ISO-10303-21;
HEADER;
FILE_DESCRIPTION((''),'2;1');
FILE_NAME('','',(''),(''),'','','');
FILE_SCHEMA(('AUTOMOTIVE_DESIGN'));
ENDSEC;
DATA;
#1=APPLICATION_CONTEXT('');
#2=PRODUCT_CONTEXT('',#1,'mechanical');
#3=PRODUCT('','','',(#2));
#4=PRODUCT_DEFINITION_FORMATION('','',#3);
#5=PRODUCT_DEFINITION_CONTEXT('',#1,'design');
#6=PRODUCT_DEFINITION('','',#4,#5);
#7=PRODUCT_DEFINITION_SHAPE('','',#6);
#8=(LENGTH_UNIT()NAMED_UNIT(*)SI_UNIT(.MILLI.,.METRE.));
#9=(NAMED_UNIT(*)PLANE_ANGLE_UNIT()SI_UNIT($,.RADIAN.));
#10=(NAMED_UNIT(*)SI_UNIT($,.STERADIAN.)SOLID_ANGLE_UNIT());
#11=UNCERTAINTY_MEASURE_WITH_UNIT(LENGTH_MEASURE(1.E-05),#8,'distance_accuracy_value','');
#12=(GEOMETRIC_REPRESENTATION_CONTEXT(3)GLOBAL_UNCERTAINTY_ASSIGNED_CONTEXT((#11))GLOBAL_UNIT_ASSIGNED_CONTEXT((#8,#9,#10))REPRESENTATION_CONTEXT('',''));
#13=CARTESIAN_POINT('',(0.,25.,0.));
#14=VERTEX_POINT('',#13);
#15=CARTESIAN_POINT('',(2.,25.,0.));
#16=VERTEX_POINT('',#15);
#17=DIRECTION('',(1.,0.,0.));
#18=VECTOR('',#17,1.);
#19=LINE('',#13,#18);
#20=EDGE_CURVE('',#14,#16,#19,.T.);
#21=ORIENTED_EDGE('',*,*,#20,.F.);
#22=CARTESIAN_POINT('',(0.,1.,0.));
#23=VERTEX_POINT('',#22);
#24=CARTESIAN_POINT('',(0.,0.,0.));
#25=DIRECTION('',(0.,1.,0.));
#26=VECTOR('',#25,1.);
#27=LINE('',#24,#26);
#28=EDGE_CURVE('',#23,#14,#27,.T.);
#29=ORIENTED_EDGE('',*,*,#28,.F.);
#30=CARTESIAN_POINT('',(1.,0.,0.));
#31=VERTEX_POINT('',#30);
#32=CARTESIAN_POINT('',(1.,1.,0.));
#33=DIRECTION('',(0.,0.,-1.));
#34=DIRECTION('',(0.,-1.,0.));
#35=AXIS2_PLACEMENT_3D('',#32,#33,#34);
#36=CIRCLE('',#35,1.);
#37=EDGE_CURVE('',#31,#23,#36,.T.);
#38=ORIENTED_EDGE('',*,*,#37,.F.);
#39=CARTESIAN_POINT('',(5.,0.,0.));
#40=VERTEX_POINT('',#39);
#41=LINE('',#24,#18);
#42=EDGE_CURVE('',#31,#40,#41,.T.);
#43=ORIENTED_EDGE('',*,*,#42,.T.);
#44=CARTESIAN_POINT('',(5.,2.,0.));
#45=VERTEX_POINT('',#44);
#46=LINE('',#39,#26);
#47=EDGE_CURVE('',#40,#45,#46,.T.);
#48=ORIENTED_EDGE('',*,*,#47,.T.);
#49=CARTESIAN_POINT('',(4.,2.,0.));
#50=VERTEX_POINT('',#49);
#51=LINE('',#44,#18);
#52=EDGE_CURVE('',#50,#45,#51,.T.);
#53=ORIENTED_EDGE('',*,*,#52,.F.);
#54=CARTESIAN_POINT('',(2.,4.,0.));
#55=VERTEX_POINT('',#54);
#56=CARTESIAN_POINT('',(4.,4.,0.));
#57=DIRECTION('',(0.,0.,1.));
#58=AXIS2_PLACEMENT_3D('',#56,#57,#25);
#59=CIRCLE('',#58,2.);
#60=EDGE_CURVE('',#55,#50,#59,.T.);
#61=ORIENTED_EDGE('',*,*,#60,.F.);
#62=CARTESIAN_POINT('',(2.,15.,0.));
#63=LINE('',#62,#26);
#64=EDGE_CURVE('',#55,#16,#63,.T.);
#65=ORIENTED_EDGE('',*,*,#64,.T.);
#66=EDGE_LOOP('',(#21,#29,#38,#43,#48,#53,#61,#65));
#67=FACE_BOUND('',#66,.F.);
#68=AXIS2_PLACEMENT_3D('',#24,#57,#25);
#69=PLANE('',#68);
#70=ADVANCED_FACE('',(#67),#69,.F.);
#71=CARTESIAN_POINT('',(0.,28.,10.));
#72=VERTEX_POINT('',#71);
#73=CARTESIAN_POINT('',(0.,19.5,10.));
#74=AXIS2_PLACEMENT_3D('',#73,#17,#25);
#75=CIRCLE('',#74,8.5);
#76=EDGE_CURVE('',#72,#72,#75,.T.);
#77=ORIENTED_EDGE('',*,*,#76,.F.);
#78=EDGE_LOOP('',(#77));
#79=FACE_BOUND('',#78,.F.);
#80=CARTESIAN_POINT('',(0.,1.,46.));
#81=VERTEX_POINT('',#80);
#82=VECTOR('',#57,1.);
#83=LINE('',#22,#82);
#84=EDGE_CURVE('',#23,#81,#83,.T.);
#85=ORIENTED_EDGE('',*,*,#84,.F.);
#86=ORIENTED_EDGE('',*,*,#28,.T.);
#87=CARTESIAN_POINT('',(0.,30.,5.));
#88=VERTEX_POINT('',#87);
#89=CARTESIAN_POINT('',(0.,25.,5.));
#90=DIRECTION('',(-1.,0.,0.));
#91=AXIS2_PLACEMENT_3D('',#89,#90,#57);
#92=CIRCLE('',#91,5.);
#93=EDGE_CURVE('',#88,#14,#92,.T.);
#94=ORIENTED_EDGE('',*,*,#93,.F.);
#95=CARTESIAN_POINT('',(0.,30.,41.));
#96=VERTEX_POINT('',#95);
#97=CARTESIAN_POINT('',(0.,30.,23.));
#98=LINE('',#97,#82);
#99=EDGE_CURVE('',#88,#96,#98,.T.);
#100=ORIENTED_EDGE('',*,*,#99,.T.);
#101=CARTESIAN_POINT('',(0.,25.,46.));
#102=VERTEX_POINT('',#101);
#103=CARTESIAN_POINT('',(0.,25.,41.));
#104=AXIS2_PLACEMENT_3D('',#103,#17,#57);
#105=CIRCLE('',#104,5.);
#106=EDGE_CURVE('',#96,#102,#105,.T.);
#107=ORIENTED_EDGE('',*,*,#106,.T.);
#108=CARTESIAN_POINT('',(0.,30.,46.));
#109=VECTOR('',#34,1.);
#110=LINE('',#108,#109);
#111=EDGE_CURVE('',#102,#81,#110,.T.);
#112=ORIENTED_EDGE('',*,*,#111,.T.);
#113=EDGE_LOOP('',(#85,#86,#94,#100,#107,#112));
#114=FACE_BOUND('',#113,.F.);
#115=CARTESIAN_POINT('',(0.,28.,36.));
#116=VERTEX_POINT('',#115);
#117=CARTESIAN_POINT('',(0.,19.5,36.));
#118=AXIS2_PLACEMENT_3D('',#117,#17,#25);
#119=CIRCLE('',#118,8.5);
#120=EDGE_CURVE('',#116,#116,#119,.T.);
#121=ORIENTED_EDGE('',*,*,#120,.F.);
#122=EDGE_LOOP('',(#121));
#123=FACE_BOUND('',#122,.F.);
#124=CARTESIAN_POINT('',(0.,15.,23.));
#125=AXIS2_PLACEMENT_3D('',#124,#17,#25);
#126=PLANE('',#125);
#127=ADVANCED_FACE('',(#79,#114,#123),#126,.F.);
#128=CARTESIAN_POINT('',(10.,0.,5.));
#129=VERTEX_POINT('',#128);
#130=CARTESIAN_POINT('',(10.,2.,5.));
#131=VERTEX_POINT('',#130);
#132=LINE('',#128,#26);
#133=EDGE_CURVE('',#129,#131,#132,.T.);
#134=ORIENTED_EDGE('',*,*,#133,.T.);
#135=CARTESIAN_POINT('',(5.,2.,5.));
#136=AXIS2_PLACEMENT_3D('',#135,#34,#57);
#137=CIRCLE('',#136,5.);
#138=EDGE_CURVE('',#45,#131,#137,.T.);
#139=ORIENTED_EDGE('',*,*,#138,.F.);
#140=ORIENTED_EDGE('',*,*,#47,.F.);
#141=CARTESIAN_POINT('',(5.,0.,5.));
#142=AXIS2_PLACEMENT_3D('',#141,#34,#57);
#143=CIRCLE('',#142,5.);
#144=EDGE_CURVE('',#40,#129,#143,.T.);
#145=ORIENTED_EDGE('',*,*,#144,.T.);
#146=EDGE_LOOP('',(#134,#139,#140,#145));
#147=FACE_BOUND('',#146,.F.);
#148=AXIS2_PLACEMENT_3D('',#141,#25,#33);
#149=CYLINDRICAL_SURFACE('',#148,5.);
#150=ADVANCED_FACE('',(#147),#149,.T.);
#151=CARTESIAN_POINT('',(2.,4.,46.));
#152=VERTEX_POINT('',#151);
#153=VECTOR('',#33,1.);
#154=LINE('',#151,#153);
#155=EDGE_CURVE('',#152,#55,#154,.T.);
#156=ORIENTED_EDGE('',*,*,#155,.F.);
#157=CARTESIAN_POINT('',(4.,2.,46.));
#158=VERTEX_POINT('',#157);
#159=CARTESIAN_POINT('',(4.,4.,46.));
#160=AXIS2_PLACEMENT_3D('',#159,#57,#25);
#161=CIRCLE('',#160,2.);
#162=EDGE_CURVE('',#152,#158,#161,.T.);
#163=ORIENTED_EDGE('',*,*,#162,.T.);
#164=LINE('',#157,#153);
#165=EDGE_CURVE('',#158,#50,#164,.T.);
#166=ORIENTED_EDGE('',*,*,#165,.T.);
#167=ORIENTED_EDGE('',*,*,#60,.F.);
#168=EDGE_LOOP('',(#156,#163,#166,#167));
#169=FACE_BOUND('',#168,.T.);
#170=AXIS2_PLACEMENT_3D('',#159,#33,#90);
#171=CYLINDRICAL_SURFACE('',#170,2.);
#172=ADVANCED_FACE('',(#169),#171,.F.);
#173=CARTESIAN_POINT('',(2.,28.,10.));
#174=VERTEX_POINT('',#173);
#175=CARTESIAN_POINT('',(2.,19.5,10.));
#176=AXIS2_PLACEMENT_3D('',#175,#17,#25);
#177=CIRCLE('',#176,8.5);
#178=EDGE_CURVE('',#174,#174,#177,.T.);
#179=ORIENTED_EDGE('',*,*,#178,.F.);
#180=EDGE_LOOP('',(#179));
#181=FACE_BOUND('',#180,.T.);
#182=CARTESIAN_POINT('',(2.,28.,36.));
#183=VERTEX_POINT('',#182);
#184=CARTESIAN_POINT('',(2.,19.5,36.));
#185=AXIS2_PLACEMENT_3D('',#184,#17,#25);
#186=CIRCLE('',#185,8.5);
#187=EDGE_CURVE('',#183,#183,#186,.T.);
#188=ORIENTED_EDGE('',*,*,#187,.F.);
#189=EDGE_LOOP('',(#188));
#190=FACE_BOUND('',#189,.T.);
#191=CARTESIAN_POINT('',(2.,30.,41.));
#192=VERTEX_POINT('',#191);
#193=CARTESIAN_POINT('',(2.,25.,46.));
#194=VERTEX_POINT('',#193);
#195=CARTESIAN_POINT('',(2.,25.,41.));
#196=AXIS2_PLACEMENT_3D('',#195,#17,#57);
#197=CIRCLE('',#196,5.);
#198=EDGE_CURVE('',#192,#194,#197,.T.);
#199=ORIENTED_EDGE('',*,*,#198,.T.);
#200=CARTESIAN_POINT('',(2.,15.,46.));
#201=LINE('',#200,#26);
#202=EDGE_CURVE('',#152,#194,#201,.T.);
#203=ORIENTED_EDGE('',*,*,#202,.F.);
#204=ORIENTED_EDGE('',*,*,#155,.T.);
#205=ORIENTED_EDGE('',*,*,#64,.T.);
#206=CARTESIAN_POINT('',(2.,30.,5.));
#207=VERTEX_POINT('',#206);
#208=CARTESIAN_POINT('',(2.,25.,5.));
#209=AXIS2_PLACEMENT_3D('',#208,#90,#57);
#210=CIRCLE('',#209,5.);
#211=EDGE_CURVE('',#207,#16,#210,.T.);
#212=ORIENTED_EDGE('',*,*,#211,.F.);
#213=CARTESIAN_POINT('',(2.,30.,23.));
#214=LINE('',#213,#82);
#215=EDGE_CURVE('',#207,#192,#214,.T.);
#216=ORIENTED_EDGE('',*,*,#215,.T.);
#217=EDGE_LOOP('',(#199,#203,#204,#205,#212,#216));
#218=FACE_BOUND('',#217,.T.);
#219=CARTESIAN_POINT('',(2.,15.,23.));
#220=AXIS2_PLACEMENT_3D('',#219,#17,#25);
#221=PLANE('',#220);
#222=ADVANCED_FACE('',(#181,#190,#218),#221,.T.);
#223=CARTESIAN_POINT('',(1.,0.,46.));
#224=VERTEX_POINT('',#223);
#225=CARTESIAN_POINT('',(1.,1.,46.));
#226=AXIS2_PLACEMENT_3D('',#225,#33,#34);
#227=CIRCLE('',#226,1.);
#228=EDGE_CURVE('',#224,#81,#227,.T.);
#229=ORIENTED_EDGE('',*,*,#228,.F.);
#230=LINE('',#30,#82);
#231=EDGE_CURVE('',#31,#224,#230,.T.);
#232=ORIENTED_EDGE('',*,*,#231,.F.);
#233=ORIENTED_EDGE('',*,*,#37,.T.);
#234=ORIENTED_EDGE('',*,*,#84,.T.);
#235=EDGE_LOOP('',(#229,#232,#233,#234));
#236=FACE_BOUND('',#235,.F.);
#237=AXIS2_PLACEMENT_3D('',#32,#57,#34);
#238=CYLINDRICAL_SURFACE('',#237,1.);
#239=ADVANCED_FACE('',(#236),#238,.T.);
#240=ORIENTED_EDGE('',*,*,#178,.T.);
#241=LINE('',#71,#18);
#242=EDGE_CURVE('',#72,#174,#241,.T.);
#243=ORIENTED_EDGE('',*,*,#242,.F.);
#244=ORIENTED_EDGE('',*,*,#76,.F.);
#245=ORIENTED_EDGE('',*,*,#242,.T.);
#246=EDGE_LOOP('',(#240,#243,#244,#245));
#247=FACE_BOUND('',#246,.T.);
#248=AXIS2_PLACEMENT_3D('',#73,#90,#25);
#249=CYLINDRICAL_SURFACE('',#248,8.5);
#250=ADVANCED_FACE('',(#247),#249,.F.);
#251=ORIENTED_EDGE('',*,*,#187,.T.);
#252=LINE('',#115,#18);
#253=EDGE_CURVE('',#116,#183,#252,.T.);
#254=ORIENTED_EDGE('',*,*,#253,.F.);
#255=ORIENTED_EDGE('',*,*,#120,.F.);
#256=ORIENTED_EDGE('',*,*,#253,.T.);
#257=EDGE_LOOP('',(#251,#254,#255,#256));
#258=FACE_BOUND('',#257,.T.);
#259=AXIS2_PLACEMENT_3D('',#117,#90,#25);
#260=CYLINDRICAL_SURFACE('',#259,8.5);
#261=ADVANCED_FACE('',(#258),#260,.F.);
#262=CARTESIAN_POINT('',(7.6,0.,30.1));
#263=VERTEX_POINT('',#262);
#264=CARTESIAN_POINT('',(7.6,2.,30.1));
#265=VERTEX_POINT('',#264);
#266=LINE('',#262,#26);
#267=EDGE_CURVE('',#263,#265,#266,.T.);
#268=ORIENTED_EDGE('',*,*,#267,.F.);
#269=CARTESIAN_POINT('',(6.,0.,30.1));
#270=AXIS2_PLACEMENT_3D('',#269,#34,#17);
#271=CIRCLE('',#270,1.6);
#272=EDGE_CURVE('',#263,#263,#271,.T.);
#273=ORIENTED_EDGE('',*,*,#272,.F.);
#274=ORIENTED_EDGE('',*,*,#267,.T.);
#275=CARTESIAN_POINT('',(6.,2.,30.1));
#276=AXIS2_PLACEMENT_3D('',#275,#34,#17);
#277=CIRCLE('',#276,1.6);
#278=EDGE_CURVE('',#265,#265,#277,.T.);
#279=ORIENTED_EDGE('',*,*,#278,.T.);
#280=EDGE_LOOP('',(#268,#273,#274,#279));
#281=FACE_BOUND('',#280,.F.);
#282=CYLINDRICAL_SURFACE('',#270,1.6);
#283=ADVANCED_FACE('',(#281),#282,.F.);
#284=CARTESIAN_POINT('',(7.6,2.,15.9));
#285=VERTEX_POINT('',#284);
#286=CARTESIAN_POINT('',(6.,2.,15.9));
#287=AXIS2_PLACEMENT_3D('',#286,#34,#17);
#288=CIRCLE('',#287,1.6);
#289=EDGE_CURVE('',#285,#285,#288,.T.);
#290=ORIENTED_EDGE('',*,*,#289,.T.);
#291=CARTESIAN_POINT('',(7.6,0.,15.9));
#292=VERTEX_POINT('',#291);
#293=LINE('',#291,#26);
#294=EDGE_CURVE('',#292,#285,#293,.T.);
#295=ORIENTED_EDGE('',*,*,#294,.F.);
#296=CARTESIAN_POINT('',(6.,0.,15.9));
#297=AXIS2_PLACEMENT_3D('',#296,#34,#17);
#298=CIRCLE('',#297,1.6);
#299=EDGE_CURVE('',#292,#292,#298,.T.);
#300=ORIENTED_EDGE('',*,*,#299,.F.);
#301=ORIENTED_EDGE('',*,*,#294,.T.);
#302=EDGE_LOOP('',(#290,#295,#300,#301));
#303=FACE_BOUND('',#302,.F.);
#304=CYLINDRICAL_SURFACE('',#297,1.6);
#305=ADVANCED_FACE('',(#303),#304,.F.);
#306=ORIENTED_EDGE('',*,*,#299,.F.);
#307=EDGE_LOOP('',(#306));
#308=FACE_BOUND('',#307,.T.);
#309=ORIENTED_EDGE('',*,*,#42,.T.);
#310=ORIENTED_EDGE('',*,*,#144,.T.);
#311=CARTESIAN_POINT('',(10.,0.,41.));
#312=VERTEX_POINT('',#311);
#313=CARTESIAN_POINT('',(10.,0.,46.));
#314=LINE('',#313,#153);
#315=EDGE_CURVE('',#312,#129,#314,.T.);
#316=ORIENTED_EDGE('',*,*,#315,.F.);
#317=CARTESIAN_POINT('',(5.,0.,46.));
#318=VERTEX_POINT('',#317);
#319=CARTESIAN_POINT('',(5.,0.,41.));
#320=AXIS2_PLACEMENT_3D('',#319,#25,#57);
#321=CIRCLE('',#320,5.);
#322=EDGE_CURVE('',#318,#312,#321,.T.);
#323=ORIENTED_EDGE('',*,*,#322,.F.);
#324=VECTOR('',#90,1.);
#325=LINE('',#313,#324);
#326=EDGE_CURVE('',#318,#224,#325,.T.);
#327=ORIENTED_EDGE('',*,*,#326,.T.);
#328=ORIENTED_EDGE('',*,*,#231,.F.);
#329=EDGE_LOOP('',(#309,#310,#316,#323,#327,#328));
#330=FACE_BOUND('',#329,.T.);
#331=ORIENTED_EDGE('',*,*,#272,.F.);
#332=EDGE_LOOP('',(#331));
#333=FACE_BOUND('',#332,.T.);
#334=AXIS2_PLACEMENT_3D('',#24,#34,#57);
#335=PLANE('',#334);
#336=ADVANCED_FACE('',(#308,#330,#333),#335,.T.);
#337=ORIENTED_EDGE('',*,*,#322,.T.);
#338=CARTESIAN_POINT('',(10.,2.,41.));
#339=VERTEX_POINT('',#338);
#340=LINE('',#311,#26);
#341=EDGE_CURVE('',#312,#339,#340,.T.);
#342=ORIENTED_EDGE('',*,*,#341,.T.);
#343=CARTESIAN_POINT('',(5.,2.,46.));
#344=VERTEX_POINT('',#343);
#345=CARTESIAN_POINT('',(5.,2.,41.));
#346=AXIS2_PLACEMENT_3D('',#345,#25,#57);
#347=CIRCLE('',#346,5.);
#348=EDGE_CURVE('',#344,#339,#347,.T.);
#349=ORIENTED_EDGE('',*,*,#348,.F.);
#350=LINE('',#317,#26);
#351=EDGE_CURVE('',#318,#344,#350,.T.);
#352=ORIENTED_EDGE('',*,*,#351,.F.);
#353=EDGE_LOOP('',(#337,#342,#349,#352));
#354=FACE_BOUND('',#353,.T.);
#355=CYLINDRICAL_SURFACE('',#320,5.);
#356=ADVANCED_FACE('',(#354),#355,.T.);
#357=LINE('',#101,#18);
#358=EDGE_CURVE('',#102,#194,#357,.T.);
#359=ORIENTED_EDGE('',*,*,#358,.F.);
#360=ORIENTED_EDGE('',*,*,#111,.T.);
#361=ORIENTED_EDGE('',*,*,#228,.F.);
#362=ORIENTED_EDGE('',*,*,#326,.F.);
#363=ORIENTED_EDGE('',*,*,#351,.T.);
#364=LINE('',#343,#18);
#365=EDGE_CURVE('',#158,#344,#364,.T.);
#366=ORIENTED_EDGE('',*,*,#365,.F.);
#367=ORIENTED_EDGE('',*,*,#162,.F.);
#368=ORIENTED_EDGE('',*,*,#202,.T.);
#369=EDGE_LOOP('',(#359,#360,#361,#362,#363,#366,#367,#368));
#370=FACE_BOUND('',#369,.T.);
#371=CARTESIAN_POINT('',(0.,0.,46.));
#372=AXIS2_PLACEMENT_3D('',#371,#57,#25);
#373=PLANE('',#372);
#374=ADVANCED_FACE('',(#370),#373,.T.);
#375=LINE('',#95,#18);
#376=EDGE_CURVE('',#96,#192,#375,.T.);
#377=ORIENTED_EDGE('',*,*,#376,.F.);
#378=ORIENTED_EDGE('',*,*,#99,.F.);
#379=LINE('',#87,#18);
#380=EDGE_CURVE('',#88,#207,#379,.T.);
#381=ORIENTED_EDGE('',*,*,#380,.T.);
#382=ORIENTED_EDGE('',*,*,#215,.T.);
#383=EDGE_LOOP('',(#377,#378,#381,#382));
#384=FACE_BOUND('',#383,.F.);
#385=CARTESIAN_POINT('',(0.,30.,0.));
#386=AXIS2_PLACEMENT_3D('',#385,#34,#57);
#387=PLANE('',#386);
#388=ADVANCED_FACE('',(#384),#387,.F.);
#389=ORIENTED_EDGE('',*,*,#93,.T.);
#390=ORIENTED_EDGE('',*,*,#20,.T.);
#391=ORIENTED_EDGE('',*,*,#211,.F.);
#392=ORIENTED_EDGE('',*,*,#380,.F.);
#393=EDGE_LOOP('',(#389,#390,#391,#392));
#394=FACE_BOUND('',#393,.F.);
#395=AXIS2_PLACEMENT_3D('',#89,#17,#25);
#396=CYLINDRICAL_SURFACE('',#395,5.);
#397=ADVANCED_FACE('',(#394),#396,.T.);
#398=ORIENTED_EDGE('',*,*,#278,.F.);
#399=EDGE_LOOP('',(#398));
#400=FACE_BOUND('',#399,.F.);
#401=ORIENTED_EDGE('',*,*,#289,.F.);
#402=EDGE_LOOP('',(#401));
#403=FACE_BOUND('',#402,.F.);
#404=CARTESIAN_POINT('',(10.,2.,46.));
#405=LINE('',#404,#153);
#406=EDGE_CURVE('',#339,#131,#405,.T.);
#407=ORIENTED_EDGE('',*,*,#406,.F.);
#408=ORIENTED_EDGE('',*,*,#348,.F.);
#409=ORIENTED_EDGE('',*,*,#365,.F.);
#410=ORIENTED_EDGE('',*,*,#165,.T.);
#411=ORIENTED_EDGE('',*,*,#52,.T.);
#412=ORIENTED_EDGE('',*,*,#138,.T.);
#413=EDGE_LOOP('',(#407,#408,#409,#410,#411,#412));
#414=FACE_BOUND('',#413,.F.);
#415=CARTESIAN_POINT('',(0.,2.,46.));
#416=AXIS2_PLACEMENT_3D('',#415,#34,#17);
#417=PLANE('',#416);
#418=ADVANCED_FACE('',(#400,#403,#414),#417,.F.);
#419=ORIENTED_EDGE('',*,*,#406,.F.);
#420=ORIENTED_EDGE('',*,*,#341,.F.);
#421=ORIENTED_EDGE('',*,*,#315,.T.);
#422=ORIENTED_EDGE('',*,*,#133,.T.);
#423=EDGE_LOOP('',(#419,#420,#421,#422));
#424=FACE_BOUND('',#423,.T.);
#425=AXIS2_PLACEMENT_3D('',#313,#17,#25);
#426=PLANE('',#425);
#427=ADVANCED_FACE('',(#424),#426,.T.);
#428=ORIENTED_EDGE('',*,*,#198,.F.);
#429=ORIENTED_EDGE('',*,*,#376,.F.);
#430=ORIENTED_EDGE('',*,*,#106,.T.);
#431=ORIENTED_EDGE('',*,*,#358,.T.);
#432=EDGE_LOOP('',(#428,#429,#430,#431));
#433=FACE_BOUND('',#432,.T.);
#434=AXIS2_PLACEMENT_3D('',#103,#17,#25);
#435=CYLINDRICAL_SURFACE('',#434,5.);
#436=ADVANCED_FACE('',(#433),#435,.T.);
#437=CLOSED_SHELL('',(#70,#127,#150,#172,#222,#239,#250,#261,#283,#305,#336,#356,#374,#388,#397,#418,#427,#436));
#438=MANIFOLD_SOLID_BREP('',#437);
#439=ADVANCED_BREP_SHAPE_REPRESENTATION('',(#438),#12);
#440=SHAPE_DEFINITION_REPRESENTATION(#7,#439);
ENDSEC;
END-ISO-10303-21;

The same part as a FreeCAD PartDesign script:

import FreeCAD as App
import Part
import Sketcher
from FreeCAD import Vector


def edges_at(feature, points):
    """Names of the edges that pass closest to the given points."""
    edges = feature.Shape.Edges
    near = lambda p: min(range(len(edges)), key=lambda i: edges[i].distToShape(Part.Vertex(*p))[0])
    return sorted({f"Edge{near(p) + 1}" for p in points})

doc = App.newDocument("Part")
params = doc.addObject("Spreadsheet::Sheet", "Params")
for row, (alias, value) in enumerate([
    ("sketch1_diameter", "17 mm"),
    ("sketch1_width", "30 mm"),
    ("sketch1_height", "46 mm"),
    ("pad1_length", "2 mm"),
    ("sketch2_width", "10 mm"),
    ("sketch2_height", "2 mm"),
    ("pad2_length", "46 mm"),
    ("sketch3_diameter", "3.2 mm"),
    ("pocket1_length", "25 mm"),
    ("fillet_radius", "1 mm"),
    ("fillet2_radius", "2 mm"),
    ("fillet3_radius", "5 mm"),
    ("fillet4_radius", "5 mm"),
], start=1):
    params.set(f"A{row}", alias)
    params.set(f"B{row}", "=" + value)
    params.setAlias(f"B{row}", alias)

body = doc.addObject("PartDesign::Body", "Body")

# Sketch on YZ plane
sketch1 = body.newObject("Sketcher::SketchObject", "Sketch")
sketch1.AttachmentSupport = (doc.getObject("YZ_Plane"), [""])
sketch1.MapMode = "FlatFace"
sketch1.addGeometry(Part.LineSegment(Vector(0, 46, 0), Vector(0, 0, 0)), False)
sketch1.addGeometry(Part.LineSegment(Vector(0, 0, 0), Vector(30, 0, 0)), False)
sketch1.addGeometry(Part.LineSegment(Vector(30, 0, 0), Vector(30, 46, 0)), False)
sketch1.addGeometry(Part.LineSegment(Vector(30, 46, 0), Vector(0, 46, 0)), False)
sketch1.addGeometry(Part.Circle(Vector(20, 10, 0), Vector(0, 0, 1), 8), False)
sketch1.addGeometry(Part.Circle(Vector(20, 36, 0), Vector(0, 0, 1), 8), False)
sketch1.addConstraint(Sketcher.Constraint("Coincident", 0, 2, 1, 1))
sketch1.addConstraint(Sketcher.Constraint("Coincident", 1, 2, 2, 1))
sketch1.addConstraint(Sketcher.Constraint("Coincident", 2, 2, 3, 1))
sketch1.addConstraint(Sketcher.Constraint("Coincident", 3, 2, 0, 1))
sketch1.addConstraint(Sketcher.Constraint("Vertical", 0))
sketch1.addConstraint(Sketcher.Constraint("Horizontal", 1))
sketch1.addConstraint(Sketcher.Constraint("Vertical", 2))
sketch1.addConstraint(Sketcher.Constraint("Horizontal", 3))
sketch1.addConstraint(Sketcher.Constraint("Coincident", 0, 2, -1, 1))
sketch1.addConstraint(Sketcher.Constraint("Equal", 4, 5))
sketch1.addConstraint(Sketcher.Constraint("Vertical", 4, 3, 5, 3))
sketch1.addConstraint(Sketcher.Constraint("Diameter", 4, 17.0))
sketch1.addConstraint(Sketcher.Constraint("DistanceX", 1, 1, 1, 2, 30.0))
sketch1.addConstraint(Sketcher.Constraint("DistanceY", 0, 2, 0, 1, 46.0))
sketch1.addConstraint(Sketcher.Constraint("DistanceY", -1, 1, 4, 3, 10.0))
sketch1.addConstraint(Sketcher.Constraint("DistanceY", -1, 1, 5, 3, 36.0))
sketch1.addConstraint(Sketcher.Constraint("DistanceX", -1, 1, 4, 3, 19.5))
sketch1.setExpression("Constraints[11]", "Params.sketch1_diameter")
sketch1.setExpression("Constraints[12]", "Params.sketch1_width")
sketch1.setExpression("Constraints[13]", "Params.sketch1_height")
pad1 = body.newObject("PartDesign::Pad", "Pad")
pad1.Profile = sketch1
pad1.setExpression("Length", "Params.pad1_length")

# Sketch on XY plane
sketch2 = body.newObject("Sketcher::SketchObject", "Sketch001")
sketch2.AttachmentSupport = (doc.getObject("XY_Plane"), [""])
sketch2.MapMode = "FlatFace"
sketch2.AttachmentOffset = App.Placement(Vector(0, 0, 46), App.Rotation())
sketch2.addGeometry(Part.LineSegment(Vector(0, 2, 0), Vector(0, 0, 0)), False)
sketch2.addGeometry(Part.LineSegment(Vector(0, 0, 0), Vector(10, 0, 0)), False)
sketch2.addGeometry(Part.LineSegment(Vector(10, 0, 0), Vector(10, 2, 0)), False)
sketch2.addGeometry(Part.LineSegment(Vector(10, 2, 0), Vector(0, 2, 0)), False)
sketch2.addConstraint(Sketcher.Constraint("Coincident", 0, 2, 1, 1))
sketch2.addConstraint(Sketcher.Constraint("Coincident", 1, 2, 2, 1))
sketch2.addConstraint(Sketcher.Constraint("Coincident", 2, 2, 3, 1))
sketch2.addConstraint(Sketcher.Constraint("Coincident", 3, 2, 0, 1))
sketch2.addConstraint(Sketcher.Constraint("Vertical", 0))
sketch2.addConstraint(Sketcher.Constraint("Horizontal", 1))
sketch2.addConstraint(Sketcher.Constraint("Vertical", 2))
sketch2.addConstraint(Sketcher.Constraint("Horizontal", 3))
sketch2.addConstraint(Sketcher.Constraint("Coincident", 0, 2, -1, 1))
sketch2.addConstraint(Sketcher.Constraint("DistanceX", 1, 1, 1, 2, 10.0))
sketch2.addConstraint(Sketcher.Constraint("DistanceY", 0, 2, 0, 1, 2.0))
sketch2.setExpression("Constraints[9]", "Params.sketch2_width")
sketch2.setExpression("Constraints[10]", "Params.sketch2_height")
pad2 = body.newObject("PartDesign::Pad", "Pad001")
pad2.Profile = sketch2
pad2.setExpression("Length", "Params.pad2_length")
pad2.Reversed = True

# Sketch on XZ plane
sketch3 = body.newObject("Sketcher::SketchObject", "Sketch002")
sketch3.AttachmentSupport = (doc.getObject("XZ_Plane"), [""])
sketch3.MapMode = "FlatFace"
sketch3.addGeometry(Part.Circle(Vector(6, 30.1, 0), Vector(0, 0, 1), 1.6), False)
sketch3.addGeometry(Part.Circle(Vector(6, 15.9, 0), Vector(0, 0, 1), 1.6), False)
sketch3.addConstraint(Sketcher.Constraint("Equal", 0, 1))
sketch3.addConstraint(Sketcher.Constraint("Vertical", 0, 3, 1, 3))
sketch3.addConstraint(Sketcher.Constraint("Diameter", 0, 3.2))
sketch3.addConstraint(Sketcher.Constraint("DistanceX", -1, 1, 0, 3, 6.0))
sketch3.addConstraint(Sketcher.Constraint("DistanceY", -1, 1, 0, 3, 30.1))
sketch3.addConstraint(Sketcher.Constraint("DistanceY", -1, 1, 1, 3, 15.9))
sketch3.setExpression("Constraints[2]", "Params.sketch3_diameter")
pocket1 = body.newObject("PartDesign::Pocket", "Pocket")
pocket1.Profile = sketch3
pocket1.setExpression("Length", "Params.pocket1_length")
doc.recompute()

fillet = body.newObject("PartDesign::Fillet", "Fillet")
fillet.Base = (pocket1, edges_at(pocket1, [(0, 0, 23)]))
fillet.setExpression("Radius", "Params.fillet_radius")
doc.recompute()

fillet2 = body.newObject("PartDesign::Fillet", "Fillet001")
fillet2.Base = (fillet, edges_at(fillet, [(2, 2, 23)]))
fillet2.setExpression("Radius", "Params.fillet2_radius")
doc.recompute()

fillet3 = body.newObject("PartDesign::Fillet", "Fillet002")
fillet3.Base = (fillet2, edges_at(fillet2, [(1, 30, 46)]))
fillet3.setExpression("Radius", "Params.fillet3_radius")
doc.recompute()

fillet4 = body.newObject("PartDesign::Fillet", "Fillet003")
fillet4.Base = (fillet3, edges_at(fillet3, [(1, 30, 0), (10, 1, 46), (10, 1, 0)]))
fillet4.setExpression("Radius", "Params.fillet4_radius")

doc.recompute()
